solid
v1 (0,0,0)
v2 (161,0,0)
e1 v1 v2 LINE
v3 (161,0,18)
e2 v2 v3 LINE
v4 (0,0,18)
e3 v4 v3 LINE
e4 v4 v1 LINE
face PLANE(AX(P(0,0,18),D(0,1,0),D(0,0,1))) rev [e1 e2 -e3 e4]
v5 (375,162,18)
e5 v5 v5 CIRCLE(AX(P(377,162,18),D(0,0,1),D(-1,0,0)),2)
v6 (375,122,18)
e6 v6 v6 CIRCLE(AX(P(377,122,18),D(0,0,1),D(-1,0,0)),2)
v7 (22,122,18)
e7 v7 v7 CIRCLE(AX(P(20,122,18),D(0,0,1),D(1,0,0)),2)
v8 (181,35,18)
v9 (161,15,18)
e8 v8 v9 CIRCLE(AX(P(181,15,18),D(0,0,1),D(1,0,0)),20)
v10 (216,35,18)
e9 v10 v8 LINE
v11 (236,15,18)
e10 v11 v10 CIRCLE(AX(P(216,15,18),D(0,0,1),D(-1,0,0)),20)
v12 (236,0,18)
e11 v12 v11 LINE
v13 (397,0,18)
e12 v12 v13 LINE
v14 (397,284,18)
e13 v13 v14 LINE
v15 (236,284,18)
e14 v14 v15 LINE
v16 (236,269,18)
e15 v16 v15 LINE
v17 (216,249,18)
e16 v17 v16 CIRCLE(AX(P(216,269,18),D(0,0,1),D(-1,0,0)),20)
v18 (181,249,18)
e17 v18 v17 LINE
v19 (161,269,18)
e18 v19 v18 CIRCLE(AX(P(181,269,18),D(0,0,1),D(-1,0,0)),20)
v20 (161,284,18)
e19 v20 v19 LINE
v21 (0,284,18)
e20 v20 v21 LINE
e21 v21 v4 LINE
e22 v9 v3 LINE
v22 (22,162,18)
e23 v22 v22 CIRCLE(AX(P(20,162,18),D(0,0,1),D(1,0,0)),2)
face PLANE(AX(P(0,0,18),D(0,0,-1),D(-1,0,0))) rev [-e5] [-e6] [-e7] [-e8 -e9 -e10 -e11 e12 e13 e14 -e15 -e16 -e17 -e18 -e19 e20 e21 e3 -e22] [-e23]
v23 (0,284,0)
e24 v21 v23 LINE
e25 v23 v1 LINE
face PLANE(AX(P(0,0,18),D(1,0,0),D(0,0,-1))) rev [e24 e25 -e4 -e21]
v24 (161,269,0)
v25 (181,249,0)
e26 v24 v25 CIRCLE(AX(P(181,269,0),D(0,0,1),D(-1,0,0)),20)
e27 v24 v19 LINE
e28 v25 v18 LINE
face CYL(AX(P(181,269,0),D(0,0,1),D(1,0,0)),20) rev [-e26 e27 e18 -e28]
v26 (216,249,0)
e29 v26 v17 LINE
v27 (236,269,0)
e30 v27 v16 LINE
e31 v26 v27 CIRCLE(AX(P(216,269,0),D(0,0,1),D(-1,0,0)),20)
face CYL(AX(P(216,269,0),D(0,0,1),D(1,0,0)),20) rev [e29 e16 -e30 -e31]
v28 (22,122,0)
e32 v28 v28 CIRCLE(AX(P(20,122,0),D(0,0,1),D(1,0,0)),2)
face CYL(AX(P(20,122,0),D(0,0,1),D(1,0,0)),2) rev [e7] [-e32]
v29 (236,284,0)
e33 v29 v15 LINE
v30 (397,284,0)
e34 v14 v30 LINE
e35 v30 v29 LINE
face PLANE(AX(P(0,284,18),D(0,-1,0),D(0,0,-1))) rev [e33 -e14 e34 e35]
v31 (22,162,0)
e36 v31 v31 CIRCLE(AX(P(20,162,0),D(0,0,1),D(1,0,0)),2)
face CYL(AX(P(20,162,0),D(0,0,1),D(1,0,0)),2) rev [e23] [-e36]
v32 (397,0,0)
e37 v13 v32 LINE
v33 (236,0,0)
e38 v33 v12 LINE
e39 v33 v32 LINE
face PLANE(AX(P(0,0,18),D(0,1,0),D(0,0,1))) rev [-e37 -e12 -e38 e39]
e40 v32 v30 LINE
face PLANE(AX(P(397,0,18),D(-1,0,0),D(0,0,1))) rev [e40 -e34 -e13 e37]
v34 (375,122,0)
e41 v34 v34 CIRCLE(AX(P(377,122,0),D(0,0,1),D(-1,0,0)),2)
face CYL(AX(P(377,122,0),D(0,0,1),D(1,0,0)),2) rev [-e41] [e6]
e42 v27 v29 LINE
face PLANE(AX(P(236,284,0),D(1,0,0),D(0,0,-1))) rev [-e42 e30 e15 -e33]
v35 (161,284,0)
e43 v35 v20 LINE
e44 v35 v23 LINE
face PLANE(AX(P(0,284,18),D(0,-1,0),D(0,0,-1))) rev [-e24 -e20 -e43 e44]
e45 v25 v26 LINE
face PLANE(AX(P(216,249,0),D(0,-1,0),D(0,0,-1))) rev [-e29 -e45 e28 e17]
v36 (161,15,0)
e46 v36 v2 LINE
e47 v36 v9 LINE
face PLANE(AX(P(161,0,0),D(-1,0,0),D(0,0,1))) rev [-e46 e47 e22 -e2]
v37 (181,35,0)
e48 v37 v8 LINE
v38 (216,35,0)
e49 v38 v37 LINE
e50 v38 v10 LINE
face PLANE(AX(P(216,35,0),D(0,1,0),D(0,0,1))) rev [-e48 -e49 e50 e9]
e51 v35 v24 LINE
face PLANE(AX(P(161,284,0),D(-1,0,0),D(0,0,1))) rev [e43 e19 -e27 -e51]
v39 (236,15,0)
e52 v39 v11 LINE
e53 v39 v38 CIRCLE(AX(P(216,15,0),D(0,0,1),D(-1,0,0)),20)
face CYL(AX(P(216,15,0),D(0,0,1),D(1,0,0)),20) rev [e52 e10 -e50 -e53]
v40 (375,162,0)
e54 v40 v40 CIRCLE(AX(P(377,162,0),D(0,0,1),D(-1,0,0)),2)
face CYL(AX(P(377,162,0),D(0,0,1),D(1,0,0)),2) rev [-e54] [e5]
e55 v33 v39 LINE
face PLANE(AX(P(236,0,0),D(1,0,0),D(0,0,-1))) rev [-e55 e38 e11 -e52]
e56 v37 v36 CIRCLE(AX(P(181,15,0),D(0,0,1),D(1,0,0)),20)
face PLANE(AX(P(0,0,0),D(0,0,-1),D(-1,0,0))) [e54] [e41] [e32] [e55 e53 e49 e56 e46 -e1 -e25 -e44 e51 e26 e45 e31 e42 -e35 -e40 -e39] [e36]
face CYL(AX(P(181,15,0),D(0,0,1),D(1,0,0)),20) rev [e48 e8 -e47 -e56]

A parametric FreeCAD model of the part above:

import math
import FreeCAD as App
import Part
import Sketcher

V = App.Vector
Q = App.Units.Quantity


def add_polygon(sketch, points):
    """Adds a closed chain of lines whose ends are joined by coincident constraints."""
    first, n = sketch.GeometryCount, len(points)
    for a, b in zip(points, points[1:] + points[:1]):
        sketch.addGeometry(Part.LineSegment(App.Vector(*a, 0), App.Vector(*b, 0)), False)
    for i in range(n):
        sketch.addConstraint(Sketcher.Constraint("Coincident", first + i, 2, first + (i + 1) % n, 1))

doc = App.newDocument("Part")
body = doc.addObject("PartDesign::Body", "Body")

# Sketch on XY plane
sketch1 = body.newObject("Sketcher::SketchObject", "Sketch")
sketch1.AttachmentSupport = (doc.getObject("XY_Plane"), [""])
sketch1.MapMode = "FlatFace"
add_polygon(sketch1, [(0, 284), (0, 0), (397, 0), (397, 284)])  # lines 0-3
sketch1.addConstraint([
    Sketcher.Constraint("Vertical", 0),
    Sketcher.Constraint("Horizontal", 1),
    Sketcher.Constraint("Vertical", 2),
    Sketcher.Constraint("Horizontal", 3),
    Sketcher.Constraint("Coincident", 0, 2, -1, 1),
    Sketcher.Constraint("DistanceX", 1, 1, 1, 2, Q("397 mm")),
    Sketcher.Constraint("DistanceY", 0, 2, 0, 1, Q("284 mm")),
])
pad1 = body.newObject("PartDesign::Pad", "Pad")
pad1.Profile = sketch1
pad1.Length = 18

# Sketch on XY plane
sketch2 = body.newObject("Sketcher::SketchObject", "Sketch001")
sketch2.AttachmentSupport = (doc.getObject("XY_Plane"), [""])
sketch2.MapMode = "FlatFace"
sketch2.AttachmentOffset = App.Placement(V(0, 0, 18), App.Rotation())
sketch2.addGeometry([
    Part.Circle(V(20, 162, 0), V(0, 0, 1), 2),  # 0
    Part.Circle(V(20, 122, 0), V(0, 0, 1), 2),  # 1
    Part.Circle(V(377, 122, 0), V(0, 0, 1), 2),  # 2
    Part.Circle(V(377, 162, 0), V(0, 0, 1), 2),  # 3
    Part.LineSegment(V(236, 284, 0), V(161, 284, 0)),  # 4
    Part.LineSegment(V(161, 284, 0), V(161, 269, 0)),  # 5
    Part.ArcOfCircle(Part.Circle(V(181, 269, 0), V(0, 0, 1), 20), math.radians(180), math.radians(270)),  # 6
    Part.LineSegment(V(181, 249, 0), V(216, 249, 0)),  # 7
    Part.ArcOfCircle(Part.Circle(V(216, 269, 0), V(0, 0, 1), 20), math.radians(-90), math.radians(0)),  # 8
    Part.LineSegment(V(236, 269, 0), V(236, 284, 0)),  # 9
    Part.LineSegment(V(216, 35, 0), V(181, 35, 0)),  # 10
    Part.ArcOfCircle(Part.Circle(V(181, 15, 0), V(0, 0, 1), 20), math.radians(90), math.radians(180)),  # 11
    Part.LineSegment(V(161, 15, 0), V(161, 0, 0)),  # 12
    Part.LineSegment(V(161, 0, 0), V(236, 0, 0)),  # 13
    Part.LineSegment(V(236, 0, 0), V(236, 15, 0)),  # 14
    Part.ArcOfCircle(Part.Circle(V(216, 15, 0), V(0, 0, 1), 20), math.radians(0), math.radians(90)),  # 15
], False)
sketch2.addConstraint([
    Sketcher.Constraint("Coincident", 4, 2, 5, 1),
    Sketcher.Constraint("Tangent", 5, 2, 6, 1),
    Sketcher.Constraint("Tangent", 6, 2, 7, 1),
    Sketcher.Constraint("Tangent", 7, 2, 8, 1),
    Sketcher.Constraint("Tangent", 8, 2, 9, 1),
    Sketcher.Constraint("Coincident", 9, 2, 4, 1),
    Sketcher.Constraint("Tangent", 10, 2, 11, 1),
    Sketcher.Constraint("Tangent", 11, 2, 12, 1),
    Sketcher.Constraint("Coincident", 12, 2, 13, 1),
    Sketcher.Constraint("Coincident", 13, 2, 14, 1),
    Sketcher.Constraint("Tangent", 14, 2, 15, 1),
    Sketcher.Constraint("Tangent", 15, 2, 10, 1),
    Sketcher.Constraint("Horizontal", 4),
    Sketcher.Constraint("Vertical", 5),
    Sketcher.Constraint("Horizontal", 7),
    Sketcher.Constraint("Vertical", 9),
    Sketcher.Constraint("Horizontal", 10),
    Sketcher.Constraint("Vertical", 12),
    Sketcher.Constraint("Horizontal", 13),
    Sketcher.Constraint("Vertical", 14),
    Sketcher.Constraint("Equal", 0, 1),
    Sketcher.Constraint("Equal", 1, 2),
    Sketcher.Constraint("Equal", 2, 3),
    Sketcher.Constraint("Equal", 6, 8),
    Sketcher.Constraint("Equal", 8, 11),
    Sketcher.Constraint("Equal", 11, 15),
    Sketcher.Constraint("PointOnObject", 12, 2, -1),
    Sketcher.Constraint("Horizontal", 1, 3, 2, 3),
    Sketcher.Constraint("Horizontal", 0, 3, 3, 3),
    Sketcher.Constraint("Vertical", 0, 3, 1, 3),
    Sketcher.Constraint("Vertical", 2, 3, 3, 3),
    Sketcher.Constraint("Vertical", 6, 3, 11, 3),
    Sketcher.Constraint("Vertical", 8, 3, 15, 3),
    Sketcher.Constraint("Equal", 9, 12),
    Sketcher.Constraint("Diameter", 0, Q("4 mm")),
    Sketcher.Constraint("Radius", 6, Q("20 mm")),
    Sketcher.Constraint("DistanceX", 4, 2, 4, 1, Q("75 mm")),
    Sketcher.Constraint("DistanceY", 5, 2, 5, 1, Q("15 mm")),
    Sketcher.Constraint("DistanceX", -1, 1, 0, 3, Q("20 mm")),
    Sketcher.Constraint("DistanceY", -1, 1, 0, 3, Q("162 mm")),
    Sketcher.Constraint("DistanceY", -1, 1, 1, 3, Q("122 mm")),
    Sketcher.Constraint("DistanceX", -1, 1, 2, 3, Q("377 mm")),
    Sketcher.Constraint("DistanceX", -1, 1, 6, 3, Q("181 mm")),
    Sketcher.Constraint("DistanceY", -1, 1, 6, 3, Q("269 mm")),
])
pocket1 = body.newObject("PartDesign::Pocket", "Pocket")
pocket1.Profile = sketch2
pocket1.Type = "ThroughAll"

doc.recompute()
